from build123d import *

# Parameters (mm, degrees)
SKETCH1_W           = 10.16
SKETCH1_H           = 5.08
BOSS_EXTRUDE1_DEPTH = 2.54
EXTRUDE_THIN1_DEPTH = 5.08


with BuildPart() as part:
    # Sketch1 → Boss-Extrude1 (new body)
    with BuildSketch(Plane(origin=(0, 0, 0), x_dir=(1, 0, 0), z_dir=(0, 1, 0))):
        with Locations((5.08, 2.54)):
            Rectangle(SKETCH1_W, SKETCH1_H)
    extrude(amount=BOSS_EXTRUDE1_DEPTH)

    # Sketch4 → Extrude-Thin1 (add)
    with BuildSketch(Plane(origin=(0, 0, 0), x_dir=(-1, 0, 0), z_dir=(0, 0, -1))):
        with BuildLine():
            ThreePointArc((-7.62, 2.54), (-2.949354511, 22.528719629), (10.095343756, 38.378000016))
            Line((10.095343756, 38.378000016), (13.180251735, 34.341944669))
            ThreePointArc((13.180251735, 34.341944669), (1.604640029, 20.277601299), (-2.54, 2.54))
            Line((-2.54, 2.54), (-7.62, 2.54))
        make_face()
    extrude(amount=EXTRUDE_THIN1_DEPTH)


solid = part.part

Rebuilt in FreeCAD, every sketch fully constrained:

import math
import FreeCAD as App
import Part
import Sketcher
from FreeCAD import Vector
Q = App.Units.Quantity

doc = App.newDocument("Part")
body = doc.addObject("PartDesign::Body", "Body")

sketch1 = doc.addObject("Sketcher::SketchObject", "Sketch")
body.addObject(sketch1)
sketch1.AttachmentSupport = (doc.XZ_Plane, [""])
sketch1.MapMode = "FlatFace"
sketch1.addGeometry([
    Part.LineSegment(Vector(0, -5.08, 0), Vector(0, 0, 0)),
    Part.LineSegment(Vector(0, 0, 0), Vector(10.16, 0, 0)),
    Part.LineSegment(Vector(10.16, 0, 0), Vector(10.16, -5.08, 0)),
    Part.LineSegment(Vector(10.16, -5.08, 0), Vector(0, -5.08, 0)),
], False)
sketch1.addConstraint([
    Sketcher.Constraint("Coincident", 0, 2, 1, 1),
    Sketcher.Constraint("Coincident", 1, 2, 2, 1),
    Sketcher.Constraint("Coincident", 2, 2, 3, 1),
    Sketcher.Constraint("Coincident", 3, 2, 0, 1),
    Sketcher.Constraint("Vertical", 0),
    Sketcher.Constraint("Horizontal", 1),
    Sketcher.Constraint("Vertical", 2),
    Sketcher.Constraint("Horizontal", 3),
    Sketcher.Constraint("Coincident", 0, 2, -1, 1),
    Sketcher.Constraint("DistanceX", 1, 1, 1, 2, Q("0.4 in")),
    Sketcher.Constraint("DistanceY", 0, 1, 0, 2, Q("0.2 in")),
])
pad1 = doc.addObject("PartDesign::Pad", "Pad")
body.addObject(pad1)
pad1.Profile = sketch1
pad1.Length = Q("0.1 in")
pad1.Reversed = True

sketch2 = doc.addObject("Sketcher::SketchObject", "Sketch001")
body.addObject(sketch2)
sketch2.AttachmentSupport = (doc.XY_Plane, [""])
sketch2.MapMode = "FlatFace"
sketch2.addGeometry([
    Part.ArcOfCircle(Part.Circle(Vector(-37.487667, 2.54, 0), Vector(0, 0, 1), 45.107667), math.radians(0), math.radians(52.607968)),
    Part.LineSegment(Vector(7.62, 2.54, 0), Vector(2.54, 2.54, 0)),
    Part.ArcOfCircle(Part.Circle(Vector(-37.487667, 2.54, 0), Vector(0, 0, 1), 40.027667), math.radians(0), math.radians(52.607968)),
    Part.LineSegment(Vector(-13.180252, 34.341945, 0), Vector(-10.095344, 38.378, 0)),
], False)
sketch2.addConstraint([
    Sketcher.Constraint("Coincident", 0, 1, 1, 1),
    Sketcher.Constraint("Coincident", 1, 2, 2, 1),
    Sketcher.Constraint("Coincident", 2, 2, 3, 1),
    Sketcher.Constraint("Coincident", 3, 2, 0, 2),
    Sketcher.Constraint("Horizontal", 1),
    Sketcher.Constraint("Coincident", 2, 3, 0, 3),
    Sketcher.Constraint("Horizontal", 2, 3, 0, 1),
    Sketcher.Constraint("DistanceX", 1, 2, 1, 1, Q("0.2 in")),
    Sketcher.Constraint("DistanceY", -1, 1, 0, 3, Q("0.1 in")),
    Sketcher.Constraint("DistanceX", -1, 1, 0, 1, Q("0.3 in")),
    Sketcher.Constraint("Radius", 0, 45.107667),
    Sketcher.Constraint("DistanceY", 2, 2, 3, 2, Q("0.1588998 in")),
    Sketcher.Constraint("DistanceY", -1, 1, 3, 2, 38.378),
])
pad2 = doc.addObject("PartDesign::Pad", "Pad001")
body.addObject(pad2)
pad2.Profile = sketch2
pad2.Length = Q("0.2 in")
pad2.Reversed = True

doc.recompute()
